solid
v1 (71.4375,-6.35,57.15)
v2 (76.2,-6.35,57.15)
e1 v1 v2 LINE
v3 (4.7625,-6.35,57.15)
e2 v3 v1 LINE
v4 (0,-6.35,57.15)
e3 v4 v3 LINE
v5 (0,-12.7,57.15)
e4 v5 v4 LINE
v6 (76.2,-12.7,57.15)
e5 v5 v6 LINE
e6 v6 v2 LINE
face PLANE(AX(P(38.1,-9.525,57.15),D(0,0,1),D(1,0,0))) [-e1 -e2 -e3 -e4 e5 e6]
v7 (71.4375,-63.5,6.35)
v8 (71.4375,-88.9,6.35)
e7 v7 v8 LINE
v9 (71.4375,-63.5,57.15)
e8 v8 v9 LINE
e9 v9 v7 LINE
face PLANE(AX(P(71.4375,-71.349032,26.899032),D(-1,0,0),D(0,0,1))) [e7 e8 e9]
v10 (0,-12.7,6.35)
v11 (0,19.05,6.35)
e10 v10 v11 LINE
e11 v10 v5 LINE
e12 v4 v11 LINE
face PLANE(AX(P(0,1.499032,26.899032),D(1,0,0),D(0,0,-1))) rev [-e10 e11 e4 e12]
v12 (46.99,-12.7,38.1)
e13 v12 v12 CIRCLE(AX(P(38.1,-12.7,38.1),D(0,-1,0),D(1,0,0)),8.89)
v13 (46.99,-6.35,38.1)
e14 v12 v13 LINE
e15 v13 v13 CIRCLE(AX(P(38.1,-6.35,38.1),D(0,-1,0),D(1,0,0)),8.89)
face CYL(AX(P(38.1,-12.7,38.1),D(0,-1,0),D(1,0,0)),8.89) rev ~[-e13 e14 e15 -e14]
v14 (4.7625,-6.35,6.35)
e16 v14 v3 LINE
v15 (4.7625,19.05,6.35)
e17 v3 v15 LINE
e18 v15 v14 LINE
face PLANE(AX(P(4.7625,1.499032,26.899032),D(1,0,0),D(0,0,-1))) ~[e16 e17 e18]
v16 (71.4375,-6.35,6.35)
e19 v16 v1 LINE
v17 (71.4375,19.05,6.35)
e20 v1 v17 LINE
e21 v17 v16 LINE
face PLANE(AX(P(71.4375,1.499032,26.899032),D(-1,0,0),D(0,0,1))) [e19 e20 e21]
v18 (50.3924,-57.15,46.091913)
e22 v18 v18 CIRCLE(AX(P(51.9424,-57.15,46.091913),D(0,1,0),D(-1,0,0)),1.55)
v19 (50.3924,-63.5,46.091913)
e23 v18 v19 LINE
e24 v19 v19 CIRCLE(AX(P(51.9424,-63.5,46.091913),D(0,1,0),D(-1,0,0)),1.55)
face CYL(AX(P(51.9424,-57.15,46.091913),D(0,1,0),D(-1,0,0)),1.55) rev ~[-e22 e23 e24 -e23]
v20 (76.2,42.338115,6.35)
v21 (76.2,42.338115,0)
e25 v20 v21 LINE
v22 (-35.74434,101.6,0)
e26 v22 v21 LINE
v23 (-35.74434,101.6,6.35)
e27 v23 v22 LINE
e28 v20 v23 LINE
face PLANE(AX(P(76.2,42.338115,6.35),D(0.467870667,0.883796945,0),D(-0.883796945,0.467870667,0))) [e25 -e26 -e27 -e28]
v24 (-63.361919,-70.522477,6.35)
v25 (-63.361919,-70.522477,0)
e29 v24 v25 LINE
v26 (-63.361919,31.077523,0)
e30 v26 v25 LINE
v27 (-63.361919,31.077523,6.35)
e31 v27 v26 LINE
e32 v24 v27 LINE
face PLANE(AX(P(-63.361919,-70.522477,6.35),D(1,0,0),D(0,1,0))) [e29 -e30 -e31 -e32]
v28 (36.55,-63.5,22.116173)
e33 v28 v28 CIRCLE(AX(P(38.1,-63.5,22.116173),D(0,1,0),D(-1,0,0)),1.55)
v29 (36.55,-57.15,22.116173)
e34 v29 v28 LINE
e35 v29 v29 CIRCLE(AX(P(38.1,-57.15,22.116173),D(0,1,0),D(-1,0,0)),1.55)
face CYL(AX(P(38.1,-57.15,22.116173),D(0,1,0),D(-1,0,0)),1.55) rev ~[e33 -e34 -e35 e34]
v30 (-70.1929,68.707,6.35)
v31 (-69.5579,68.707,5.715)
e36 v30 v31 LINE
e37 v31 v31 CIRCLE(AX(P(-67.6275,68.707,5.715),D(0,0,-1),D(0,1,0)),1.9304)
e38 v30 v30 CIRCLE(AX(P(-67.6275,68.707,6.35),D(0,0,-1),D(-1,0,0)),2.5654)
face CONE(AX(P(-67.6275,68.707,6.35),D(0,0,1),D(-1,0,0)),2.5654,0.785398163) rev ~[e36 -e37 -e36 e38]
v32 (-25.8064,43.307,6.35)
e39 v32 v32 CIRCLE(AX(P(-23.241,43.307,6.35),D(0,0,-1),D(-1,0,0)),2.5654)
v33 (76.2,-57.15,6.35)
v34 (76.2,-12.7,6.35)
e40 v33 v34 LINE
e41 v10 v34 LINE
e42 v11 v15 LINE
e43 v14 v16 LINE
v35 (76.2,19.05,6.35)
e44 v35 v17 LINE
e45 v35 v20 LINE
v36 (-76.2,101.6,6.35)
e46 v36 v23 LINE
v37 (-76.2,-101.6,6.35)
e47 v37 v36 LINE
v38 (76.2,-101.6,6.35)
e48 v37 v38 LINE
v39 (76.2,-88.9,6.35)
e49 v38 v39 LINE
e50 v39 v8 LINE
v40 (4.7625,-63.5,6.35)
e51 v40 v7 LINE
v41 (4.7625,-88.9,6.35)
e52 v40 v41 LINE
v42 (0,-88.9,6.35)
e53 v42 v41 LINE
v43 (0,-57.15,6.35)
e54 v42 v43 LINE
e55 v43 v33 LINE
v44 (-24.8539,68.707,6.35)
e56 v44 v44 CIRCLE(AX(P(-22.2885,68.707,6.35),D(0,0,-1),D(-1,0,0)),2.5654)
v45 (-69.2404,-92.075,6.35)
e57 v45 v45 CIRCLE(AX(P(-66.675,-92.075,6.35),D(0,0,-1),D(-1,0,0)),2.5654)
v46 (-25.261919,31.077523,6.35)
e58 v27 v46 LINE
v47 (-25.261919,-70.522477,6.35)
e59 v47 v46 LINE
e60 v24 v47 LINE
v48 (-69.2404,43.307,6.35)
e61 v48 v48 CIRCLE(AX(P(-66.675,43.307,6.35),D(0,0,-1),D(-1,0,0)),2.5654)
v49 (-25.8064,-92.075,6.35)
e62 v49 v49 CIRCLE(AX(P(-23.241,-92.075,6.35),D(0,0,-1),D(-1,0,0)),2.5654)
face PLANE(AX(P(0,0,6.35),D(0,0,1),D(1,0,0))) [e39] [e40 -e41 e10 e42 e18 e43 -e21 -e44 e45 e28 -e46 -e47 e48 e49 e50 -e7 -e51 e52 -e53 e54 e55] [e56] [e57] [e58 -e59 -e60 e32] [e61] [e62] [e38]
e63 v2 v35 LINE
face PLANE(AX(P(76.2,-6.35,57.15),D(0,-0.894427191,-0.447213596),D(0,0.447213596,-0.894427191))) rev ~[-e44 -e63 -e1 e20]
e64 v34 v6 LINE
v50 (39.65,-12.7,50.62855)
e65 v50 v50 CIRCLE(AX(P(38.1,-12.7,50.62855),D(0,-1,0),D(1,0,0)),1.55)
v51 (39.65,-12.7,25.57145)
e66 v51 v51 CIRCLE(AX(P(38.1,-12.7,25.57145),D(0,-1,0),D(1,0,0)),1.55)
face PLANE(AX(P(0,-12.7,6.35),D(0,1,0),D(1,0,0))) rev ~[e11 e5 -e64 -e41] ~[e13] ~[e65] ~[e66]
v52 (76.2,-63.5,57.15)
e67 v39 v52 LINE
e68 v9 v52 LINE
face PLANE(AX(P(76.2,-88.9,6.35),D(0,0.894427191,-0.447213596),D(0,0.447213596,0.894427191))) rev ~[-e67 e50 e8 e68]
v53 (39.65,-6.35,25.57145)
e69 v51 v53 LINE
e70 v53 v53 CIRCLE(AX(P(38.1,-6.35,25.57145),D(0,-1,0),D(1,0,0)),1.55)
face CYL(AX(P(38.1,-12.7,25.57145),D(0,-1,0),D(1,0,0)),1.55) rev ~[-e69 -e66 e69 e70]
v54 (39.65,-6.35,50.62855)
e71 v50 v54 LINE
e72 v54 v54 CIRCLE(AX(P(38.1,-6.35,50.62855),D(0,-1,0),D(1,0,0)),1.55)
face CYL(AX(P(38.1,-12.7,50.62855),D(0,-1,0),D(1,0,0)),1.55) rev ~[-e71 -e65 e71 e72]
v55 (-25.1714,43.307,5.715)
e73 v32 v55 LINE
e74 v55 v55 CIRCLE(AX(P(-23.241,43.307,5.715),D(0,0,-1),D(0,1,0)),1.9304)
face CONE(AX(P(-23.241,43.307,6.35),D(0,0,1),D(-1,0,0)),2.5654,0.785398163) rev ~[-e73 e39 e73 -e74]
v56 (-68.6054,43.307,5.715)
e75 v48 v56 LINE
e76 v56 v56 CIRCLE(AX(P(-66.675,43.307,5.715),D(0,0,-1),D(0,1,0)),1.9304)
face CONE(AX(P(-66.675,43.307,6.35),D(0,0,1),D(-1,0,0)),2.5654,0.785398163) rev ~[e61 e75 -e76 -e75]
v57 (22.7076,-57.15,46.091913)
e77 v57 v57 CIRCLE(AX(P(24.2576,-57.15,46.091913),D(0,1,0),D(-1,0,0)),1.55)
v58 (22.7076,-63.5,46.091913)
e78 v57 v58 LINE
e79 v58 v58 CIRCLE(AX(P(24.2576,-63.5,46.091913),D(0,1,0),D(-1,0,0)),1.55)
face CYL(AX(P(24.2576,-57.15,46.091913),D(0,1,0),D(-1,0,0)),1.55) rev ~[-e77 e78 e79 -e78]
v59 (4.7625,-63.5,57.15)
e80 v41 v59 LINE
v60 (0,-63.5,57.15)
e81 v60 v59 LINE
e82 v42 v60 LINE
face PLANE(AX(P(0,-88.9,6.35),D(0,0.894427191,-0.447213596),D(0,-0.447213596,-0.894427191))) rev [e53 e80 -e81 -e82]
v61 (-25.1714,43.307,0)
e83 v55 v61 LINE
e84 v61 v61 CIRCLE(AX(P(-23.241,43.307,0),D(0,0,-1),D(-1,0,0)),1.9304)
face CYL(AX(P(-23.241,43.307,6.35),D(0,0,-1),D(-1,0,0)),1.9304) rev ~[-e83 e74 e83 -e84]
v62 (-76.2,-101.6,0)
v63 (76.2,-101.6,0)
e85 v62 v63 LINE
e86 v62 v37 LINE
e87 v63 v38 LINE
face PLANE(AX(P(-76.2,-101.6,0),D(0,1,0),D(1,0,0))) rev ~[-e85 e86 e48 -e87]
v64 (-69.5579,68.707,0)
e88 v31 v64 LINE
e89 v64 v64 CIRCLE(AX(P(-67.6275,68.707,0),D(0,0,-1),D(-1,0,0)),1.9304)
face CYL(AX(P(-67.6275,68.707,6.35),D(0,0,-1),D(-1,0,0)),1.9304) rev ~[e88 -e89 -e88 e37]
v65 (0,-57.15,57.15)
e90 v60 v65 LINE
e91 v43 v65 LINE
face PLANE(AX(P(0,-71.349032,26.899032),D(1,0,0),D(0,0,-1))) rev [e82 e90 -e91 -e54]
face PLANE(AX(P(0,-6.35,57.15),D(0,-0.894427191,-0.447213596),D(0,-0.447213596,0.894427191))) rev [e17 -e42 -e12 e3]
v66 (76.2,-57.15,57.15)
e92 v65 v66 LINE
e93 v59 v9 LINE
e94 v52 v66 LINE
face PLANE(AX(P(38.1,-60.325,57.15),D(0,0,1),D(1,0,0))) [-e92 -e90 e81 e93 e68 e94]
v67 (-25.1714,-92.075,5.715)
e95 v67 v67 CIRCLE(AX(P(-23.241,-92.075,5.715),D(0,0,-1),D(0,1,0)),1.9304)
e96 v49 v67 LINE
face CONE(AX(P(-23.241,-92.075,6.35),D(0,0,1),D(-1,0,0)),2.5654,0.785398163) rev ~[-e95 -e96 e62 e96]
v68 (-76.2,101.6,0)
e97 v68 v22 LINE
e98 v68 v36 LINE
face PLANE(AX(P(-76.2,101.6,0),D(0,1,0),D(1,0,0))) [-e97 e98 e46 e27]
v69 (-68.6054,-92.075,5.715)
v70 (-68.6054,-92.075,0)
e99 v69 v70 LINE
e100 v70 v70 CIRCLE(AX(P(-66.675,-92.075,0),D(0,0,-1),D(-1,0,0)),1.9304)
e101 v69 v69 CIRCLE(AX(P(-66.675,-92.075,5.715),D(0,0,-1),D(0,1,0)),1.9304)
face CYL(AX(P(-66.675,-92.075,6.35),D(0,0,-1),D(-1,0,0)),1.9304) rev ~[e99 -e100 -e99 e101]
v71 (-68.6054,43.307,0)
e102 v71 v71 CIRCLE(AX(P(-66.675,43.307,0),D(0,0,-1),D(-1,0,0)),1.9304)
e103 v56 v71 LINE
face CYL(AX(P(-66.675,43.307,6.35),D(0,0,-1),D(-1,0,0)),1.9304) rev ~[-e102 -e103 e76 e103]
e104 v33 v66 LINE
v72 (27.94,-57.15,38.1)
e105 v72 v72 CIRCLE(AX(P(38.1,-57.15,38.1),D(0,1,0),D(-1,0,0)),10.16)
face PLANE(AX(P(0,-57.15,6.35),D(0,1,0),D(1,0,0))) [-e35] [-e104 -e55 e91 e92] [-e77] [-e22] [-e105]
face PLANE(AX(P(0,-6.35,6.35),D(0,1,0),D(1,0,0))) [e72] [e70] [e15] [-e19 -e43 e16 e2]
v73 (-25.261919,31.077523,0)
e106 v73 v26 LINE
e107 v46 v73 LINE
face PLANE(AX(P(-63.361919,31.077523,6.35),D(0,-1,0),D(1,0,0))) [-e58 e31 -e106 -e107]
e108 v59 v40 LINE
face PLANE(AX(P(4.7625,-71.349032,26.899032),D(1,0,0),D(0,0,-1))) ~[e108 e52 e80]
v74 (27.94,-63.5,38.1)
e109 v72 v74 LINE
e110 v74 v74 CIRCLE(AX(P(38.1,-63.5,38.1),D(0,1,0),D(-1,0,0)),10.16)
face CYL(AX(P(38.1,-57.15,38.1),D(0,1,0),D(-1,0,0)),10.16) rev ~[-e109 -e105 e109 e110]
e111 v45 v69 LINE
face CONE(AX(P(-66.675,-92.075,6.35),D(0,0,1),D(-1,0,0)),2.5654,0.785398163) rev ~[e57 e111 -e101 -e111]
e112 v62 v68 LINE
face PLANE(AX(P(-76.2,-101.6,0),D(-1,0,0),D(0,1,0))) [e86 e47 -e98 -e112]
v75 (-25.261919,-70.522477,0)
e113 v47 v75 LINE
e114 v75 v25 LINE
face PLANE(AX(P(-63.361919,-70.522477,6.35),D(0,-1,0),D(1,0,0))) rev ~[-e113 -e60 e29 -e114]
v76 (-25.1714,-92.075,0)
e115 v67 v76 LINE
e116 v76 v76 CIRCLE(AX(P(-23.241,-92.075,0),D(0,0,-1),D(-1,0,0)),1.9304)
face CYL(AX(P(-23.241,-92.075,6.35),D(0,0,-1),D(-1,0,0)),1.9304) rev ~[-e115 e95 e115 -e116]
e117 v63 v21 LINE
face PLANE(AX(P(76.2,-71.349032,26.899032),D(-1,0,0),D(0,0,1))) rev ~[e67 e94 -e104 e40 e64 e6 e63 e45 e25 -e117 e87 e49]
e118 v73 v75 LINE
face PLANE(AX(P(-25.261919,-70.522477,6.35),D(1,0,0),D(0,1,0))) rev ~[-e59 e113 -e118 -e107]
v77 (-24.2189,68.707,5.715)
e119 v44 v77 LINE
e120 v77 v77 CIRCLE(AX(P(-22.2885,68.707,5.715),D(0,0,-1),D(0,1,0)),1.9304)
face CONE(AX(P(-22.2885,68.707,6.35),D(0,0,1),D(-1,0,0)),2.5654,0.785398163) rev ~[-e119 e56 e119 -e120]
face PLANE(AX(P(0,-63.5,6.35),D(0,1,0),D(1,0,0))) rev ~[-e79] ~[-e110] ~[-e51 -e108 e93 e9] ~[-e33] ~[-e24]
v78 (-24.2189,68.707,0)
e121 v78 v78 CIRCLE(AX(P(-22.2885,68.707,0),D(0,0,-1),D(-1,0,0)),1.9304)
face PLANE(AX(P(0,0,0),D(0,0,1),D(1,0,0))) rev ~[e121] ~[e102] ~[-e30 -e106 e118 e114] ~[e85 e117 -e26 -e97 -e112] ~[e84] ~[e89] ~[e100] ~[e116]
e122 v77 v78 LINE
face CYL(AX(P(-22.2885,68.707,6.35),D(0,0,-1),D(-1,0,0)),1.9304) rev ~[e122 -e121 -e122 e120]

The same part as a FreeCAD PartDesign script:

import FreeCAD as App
import Part
import Sketcher
from FreeCAD import Vector
Q = App.Units.Quantity


def add_polygon(sketch, points):
    """Adds a closed chain of lines whose ends are joined by coincident constraints."""
    first, n = sketch.GeometryCount, len(points)
    for a, b in zip(points, points[1:] + points[:1]):
        sketch.addGeometry(Part.LineSegment(App.Vector(*a, 0), App.Vector(*b, 0)), False)
    for i in range(n):
        sketch.addConstraint(Sketcher.Constraint("Coincident", first + i, 2, first + (i + 1) % n, 1))

doc = App.newDocument("Part")
body = doc.addObject("PartDesign::Body", "Body")

# Sketch on XY plane
sketch1 = doc.addObject("Sketcher::SketchObject", "Sketch")
body.addObject(sketch1)
sketch1.AttachmentSupport = (doc.XY_Plane, [""])
sketch1.MapMode = "FlatFace"
add_polygon(sketch1, [(-76.2, 101.6), (-76.2, -101.6), (76.2, -101.6), (76.2, 101.6)])  # lines 0-3
sketch1.addConstraint([
    Sketcher.Constraint("Vertical", 0),
    Sketcher.Constraint("Horizontal", 1),
    Sketcher.Constraint("Vertical", 2),
    Sketcher.Constraint("Horizontal", 3),
    Sketcher.Constraint("Symmetric", 0, 2, 2, 2, -1, 1),
    Sketcher.Constraint("DistanceX", 1, 1, 1, 2, Q("6 in")),
    Sketcher.Constraint("DistanceY", 0, 2, 0, 1, Q("8 in")),
])
pad1 = doc.addObject("PartDesign::Pad", "Pad")
body.addObject(pad1)
pad1.Profile = sketch1
pad1.Length = Q("0.25 in")

# Sketch on XY plane
sketch2 = doc.addObject("Sketcher::SketchObject", "Sketch001")
body.addObject(sketch2)
sketch2.AttachmentSupport = (doc.XY_Plane, [""])
sketch2.MapMode = "FlatFace"
sketch2.AttachmentOffset = App.Placement(Vector(0, 0, 0.25 * 25.4), App.Rotation())
add_polygon(sketch2, [(0, -6.35), (0, -12.7), (76.2, -12.7), (76.2, -6.35)])  # lines 0-3
add_polygon(sketch2, [(0, -57.15), (0, -63.5), (76.2, -63.5), (76.2, -57.15)])  # lines 4-7
sketch2.addConstraint([
    Sketcher.Constraint("Vertical", 0),
    Sketcher.Constraint("Horizontal", 1),
    Sketcher.Constraint("Vertical", 2),
    Sketcher.Constraint("Horizontal", 3),
    Sketcher.Constraint("Vertical", 4),
    Sketcher.Constraint("Horizontal", 5),
    Sketcher.Constraint("Vertical", 6),
    Sketcher.Constraint("Horizontal", 7),
    Sketcher.Constraint("PointOnObject", 0, 2, -2),
    Sketcher.Constraint("PointOnObject", 4, 2, -2),
    Sketcher.Constraint("Vertical", 2, 2, 5, 2),
    Sketcher.Constraint("Equal", 2, 4),
    Sketcher.Constraint("DistanceX", 1, 1, 1, 2, Q("3 in")),
    Sketcher.Constraint("DistanceY", 4, 2, 0, 2, Q("2 in")),
    Sketcher.Constraint("DistanceY", 0, 2, 0, 1, Q("0.25 in")),
    Sketcher.Constraint("DistanceY", 0, 2, -1, 1, Q("0.5 in")),
])
pad2 = doc.addObject("PartDesign::Pad", "Pad001")
body.addObject(pad2)
pad2.Profile = sketch2
pad2.Length = Q("2 in")

# Sketch on YZ plane
sketch3 = doc.addObject("Sketcher::SketchObject", "Sketch002")
body.addObject(sketch3)
sketch3.AttachmentSupport = (doc.YZ_Plane, [""])
sketch3.MapMode = "FlatFace"
sketch3.AttachmentOffset = App.Placement(Vector(0, 0, 3 * 25.4), App.Rotation())
add_polygon(sketch3, [(-63.5, 57.15), (-88.9, 6.35), (-63.5, 6.35)])  # lines 0-2
add_polygon(sketch3, [(19.05, 6.35), (-6.35, 57.15), (-6.35, 6.35)])  # lines 3-5
sketch3.addConstraint([
    Sketcher.Constraint("Horizontal", 1),
    Sketcher.Constraint("Vertical", 2),
    Sketcher.Constraint("Vertical", 4),
    Sketcher.Constraint("Horizontal", 5),
    Sketcher.Constraint("Horizontal", 2, 2, 3, 2),
    Sketcher.Constraint("Horizontal", 1, 2, 4, 2),
    Sketcher.Constraint("Equal", 1, 5),
    Sketcher.Constraint("DistanceX", 1, 1, 1, 2, Q("1 in")),
    Sketcher.Constraint("DistanceY", 2, 1, 2, 2, Q("2 in")),
    Sketcher.Constraint("DistanceX", 0, 2, -1, 1, Q("3.5 in")),
    Sketcher.Constraint("DistanceY", -1, 1, 0, 2, Q("0.25 in")),
    Sketcher.Constraint("DistanceX", 3, 2, -1, 1, Q("0.25 in")),
])
pad3 = doc.addObject("PartDesign::Pad", "Pad002")
body.addObject(pad3)
pad3.Profile = sketch3
pad3.Length = Q("0.1875 in")
pad3.Reversed = True
doc.recompute()

datumplane = doc.addObject("PartDesign::Plane", "DatumPlane")
body.addObject(datumplane)
datumplane.AttachmentSupport = (doc.YZ_Plane, [""])
datumplane.MapMode = "FlatFace"
datumplane.AttachmentOffset = App.Placement(Vector(0, 0, 1.5 * 25.4), App.Rotation())
mirrored = doc.addObject("PartDesign::Mirrored", "Mirrored")
body.addObject(mirrored)
mirrored.Originals = [pad3]
mirrored.MirrorPlane = (datumplane, [""])
body.Tip = mirrored

# Sketch on XY plane
sketch4 = doc.addObject("Sketcher::SketchObject", "Sketch003")
body.addObject(sketch4)
sketch4.AttachmentSupport = (doc.XY_Plane, [""])
sketch4.MapMode = "FlatFace"
sketch4.AttachmentOffset = App.Placement(Vector(0, 0, 0.25 * 25.4), App.Rotation())
sketch4.addGeometry([
    Part.Circle(Vector(-66.675, -92.075, 0), Vector(0, 0, 1), 1.9304),  # 0
    Part.Circle(Vector(-66.675, 43.307, 0), Vector(0, 0, 1), 1.9304),  # 1
    Part.Circle(Vector(-23.241, 43.307, 0), Vector(0, 0, 1), 1.9304),  # 2
    Part.Circle(Vector(-23.241, -92.075, 0), Vector(0, 0, 1), 1.9304),  # 3
    Part.Circle(Vector(-67.6275, 68.707, 0), Vector(0, 0, 1), 1.9304),  # 4
    Part.Circle(Vector(-22.2885, 68.707, 0), Vector(0, 0, 1), 1.9304),  # 5
], False)
sketch4.addConstraint([
    Sketcher.Constraint("Equal", 0, 1),
    Sketcher.Constraint("Equal", 1, 2),
    Sketcher.Constraint("Equal", 2, 3),
    Sketcher.Constraint("Equal", 3, 4),
    Sketcher.Constraint("Equal", 4, 5),
    Sketcher.Constraint("Horizontal", 1, 3, 2, 3),
    Sketcher.Constraint("Horizontal", 0, 3, 3, 3),
    Sketcher.Constraint("Horizontal", 4, 3, 5, 3),
    Sketcher.Constraint("Vertical", 0, 3, 1, 3),
    Sketcher.Constraint("Vertical", 2, 3, 3, 3),
    Sketcher.Constraint("Diameter", 0, Q("0.152 in")),
    Sketcher.Constraint("DistanceY", 1, 3, 4, 3, Q("1 in")),
    Sketcher.Constraint("DistanceY", 0, 3, 1, 3, Q("5.33 in")),
    Sketcher.Constraint("DistanceX", 1, 3, 2, 3, Q("1.71 in")),
    Sketcher.Constraint("DistanceX", 0, 3, -1, 1, Q("2.625 in")),
    Sketcher.Constraint("DistanceY", 0, 3, -1, 1, Q("3.625 in")),
    Sketcher.Constraint("DistanceX", 4, 3, 5, 3, Q("1.785 in")),
    Sketcher.Constraint("DistanceX", 4, 3, -1, 1, Q("2.6625 in")),
])
doc.recompute()
hole = doc.addObject("PartDesign::Hole", "Hole")
body.addObject(hole)
hole.Profile = sketch4
hole.ThreadType = "None"
hole.Diameter = Q("0.152 in")
hole.DepthType = "ThroughAll"
hole.HoleCutType = "Countersink"
hole.HoleCutDiameter = Q("0.202 in")
hole.HoleCutCountersinkAngle = 90

# Sketch on XZ plane
sketch5 = doc.addObject("Sketcher::SketchObject", "Sketch004")
body.addObject(sketch5)
sketch5.AttachmentSupport = (doc.XZ_Plane, [""])
sketch5.MapMode = "FlatFace"
sketch5.AttachmentOffset = App.Placement(Vector(0, 0, 0.5 * 25.4), App.Rotation())
sketch5.addGeometry([
    Part.Circle(Vector(38.1, 38.1, 0), Vector(0, 0, 1), 8.89),
    Part.Circle(Vector(38.1, 50.62855, 0), Vector(0, 0, 1), 1.55),
    Part.Circle(Vector(38.1, 25.57145, 0), Vector(0, 0, 1), 1.55),
], False)
sketch5.addConstraint([
    Sketcher.Constraint("Equal", 1, 2),
    Sketcher.Constraint("Vertical", 0, 3, 1, 3),
    Sketcher.Constraint("Vertical", 1, 3, 2, 3),
    Sketcher.Constraint("Diameter", 0, Q("0.7 in")),
    Sketcher.Constraint("DistanceX", -1, 1, 0, 3, Q("1.5 in")),
    Sketcher.Constraint("DistanceY", -1, 1, 0, 3, Q("1.5 in")),
    Sketcher.Constraint("Diameter", 1, Q("3.1 mm")),
    Sketcher.Constraint("DistanceY", 2, 3, 1, 3, Q("0.9865 in")),
    Sketcher.Constraint("DistanceY", -1, 1, 1, 3, Q("50.62855 mm")),
])
pocket1 = doc.addObject("PartDesign::Pocket", "Pocket")
body.addObject(pocket1)
pocket1.Profile = sketch5
pocket1.Type = "ThroughAll"

# Sketch on XZ plane
sketch6 = doc.addObject("Sketcher::SketchObject", "Sketch005")
body.addObject(sketch6)
sketch6.AttachmentSupport = (doc.XZ_Plane, [""])
sketch6.MapMode = "FlatFace"
sketch6.AttachmentOffset = App.Placement(Vector(0, 0, 2.25 * 25.4), App.Rotation())
sketch6.addGeometry([
    Part.Circle(Vector(38.1, 38.1, 0), Vector(0, 0, 1), 10.16),
    Part.Circle(Vector(24.2576, 46.091913, 0), Vector(0, 0, 1), 1.55),
    Part.Circle(Vector(38.1, 22.116173, 0), Vector(0, 0, 1), 1.55),
    Part.Circle(Vector(51.9424, 46.091913, 0), Vector(0, 0, 1), 1.55),
], False)
sketch6.addConstraint([
    Sketcher.Constraint("Equal", 1, 2),
    Sketcher.Constraint("Equal", 2, 3),
    Sketcher.Constraint("Horizontal", 1, 3, 3, 3),
    Sketcher.Constraint("Vertical", 0, 3, 2, 3),
    Sketcher.Constraint("Diameter", 0, Q("0.8 in")),
    Sketcher.Constraint("DistanceX", -1, 1, 0, 3, Q("1.5 in")),
    Sketcher.Constraint("DistanceY", -1, 1, 0, 3, Q("1.5 in")),
    Sketcher.Constraint("Diameter", 1, Q("3.1 mm")),
    Sketcher.Constraint("DistanceX", -1, 1, 1, 3, Q("24.2576 mm")),
    Sketcher.Constraint("DistanceX", -1, 1, 3, 3, Q("51.9424 mm")),
    Sketcher.Constraint("DistanceY", 2, 3, 1, 3, Q("23.97574 mm")),
    Sketcher.Constraint("DistanceY", -1, 1, 1, 3, Q("46.091913 mm")),
])
pocket2 = doc.addObject("PartDesign::Pocket", "Pocket001")
body.addObject(pocket2)
pocket2.Profile = sketch6
pocket2.Length = Q("0.25 in")
pocket2.Reversed = True

# Sketch on XY plane
sketch7 = doc.addObject("Sketcher::SketchObject", "Sketch006")
body.addObject(sketch7)
sketch7.AttachmentSupport = (doc.XY_Plane, [""])
sketch7.MapMode = "FlatFace"
sketch7.AttachmentOffset = App.Placement(Vector(0, 0, 0.25 * 25.4), App.Rotation())
add_polygon(sketch7, [(-35.74434, 101.6), (76.2, 42.338115), (76.2, 101.6)])  # lines 0-2
sketch7.addConstraint([
    Sketcher.Constraint("Vertical", 1),
    Sketcher.Constraint("Horizontal", 2),
    Sketcher.Constraint("DistanceX", -1, 1, 0, 2, Q("3 in")),
    Sketcher.Constraint("DistanceY", -1, 1, 1, 2, Q("4 in")),
    Sketcher.Constraint("DistanceX", 2, 2, 2, 1, Q("111.94434 mm")),
    Sketcher.Constraint("DistanceY", 1, 1, 1, 2, Q("59.261885 mm")),
])
pocket3 = doc.addObject("PartDesign::Pocket", "Pocket002")
body.addObject(pocket3)
pocket3.Profile = sketch7
pocket3.Type = "UpToFirst"

# Sketch on XY plane
sketch8 = doc.addObject("Sketcher::SketchObject", "Sketch007")
body.addObject(sketch8)
sketch8.AttachmentSupport = (doc.XY_Plane, [""])
sketch8.MapMode = "FlatFace"
sketch8.AttachmentOffset = App.Placement(Vector(0, 0, 0.25 * 25.4), App.Rotation())
add_polygon(sketch8, [(-63.361919, 31.077523), (-63.361919, -70.522477), (-25.261919, -70.522477), (-25.261919, 31.077523)])  # lines 0-3
sketch8.addConstraint([
    Sketcher.Constraint("Vertical", 0),
    Sketcher.Constraint("Horizontal", 1),
    Sketcher.Constraint("Vertical", 2),
    Sketcher.Constraint("Horizontal", 3),
    Sketcher.Constraint("DistanceY", 0, 2, 0, 1, Q("4 in")),
    Sketcher.Constraint("DistanceX", 1, 1, 1, 2, Q("1.5 in")),
    Sketcher.Constraint("DistanceX", 0, 2, -1, 1, Q("63.361919 mm")),
    Sketcher.Constraint("DistanceY", 0, 2, -1, 1, Q("70.522477 mm")),
])
pocket4 = doc.addObject("PartDesign::Pocket", "Pocket003")
body.addObject(pocket4)
pocket4.Profile = sketch8
pocket4.Type = "UpToFirst"

doc.recompute()
